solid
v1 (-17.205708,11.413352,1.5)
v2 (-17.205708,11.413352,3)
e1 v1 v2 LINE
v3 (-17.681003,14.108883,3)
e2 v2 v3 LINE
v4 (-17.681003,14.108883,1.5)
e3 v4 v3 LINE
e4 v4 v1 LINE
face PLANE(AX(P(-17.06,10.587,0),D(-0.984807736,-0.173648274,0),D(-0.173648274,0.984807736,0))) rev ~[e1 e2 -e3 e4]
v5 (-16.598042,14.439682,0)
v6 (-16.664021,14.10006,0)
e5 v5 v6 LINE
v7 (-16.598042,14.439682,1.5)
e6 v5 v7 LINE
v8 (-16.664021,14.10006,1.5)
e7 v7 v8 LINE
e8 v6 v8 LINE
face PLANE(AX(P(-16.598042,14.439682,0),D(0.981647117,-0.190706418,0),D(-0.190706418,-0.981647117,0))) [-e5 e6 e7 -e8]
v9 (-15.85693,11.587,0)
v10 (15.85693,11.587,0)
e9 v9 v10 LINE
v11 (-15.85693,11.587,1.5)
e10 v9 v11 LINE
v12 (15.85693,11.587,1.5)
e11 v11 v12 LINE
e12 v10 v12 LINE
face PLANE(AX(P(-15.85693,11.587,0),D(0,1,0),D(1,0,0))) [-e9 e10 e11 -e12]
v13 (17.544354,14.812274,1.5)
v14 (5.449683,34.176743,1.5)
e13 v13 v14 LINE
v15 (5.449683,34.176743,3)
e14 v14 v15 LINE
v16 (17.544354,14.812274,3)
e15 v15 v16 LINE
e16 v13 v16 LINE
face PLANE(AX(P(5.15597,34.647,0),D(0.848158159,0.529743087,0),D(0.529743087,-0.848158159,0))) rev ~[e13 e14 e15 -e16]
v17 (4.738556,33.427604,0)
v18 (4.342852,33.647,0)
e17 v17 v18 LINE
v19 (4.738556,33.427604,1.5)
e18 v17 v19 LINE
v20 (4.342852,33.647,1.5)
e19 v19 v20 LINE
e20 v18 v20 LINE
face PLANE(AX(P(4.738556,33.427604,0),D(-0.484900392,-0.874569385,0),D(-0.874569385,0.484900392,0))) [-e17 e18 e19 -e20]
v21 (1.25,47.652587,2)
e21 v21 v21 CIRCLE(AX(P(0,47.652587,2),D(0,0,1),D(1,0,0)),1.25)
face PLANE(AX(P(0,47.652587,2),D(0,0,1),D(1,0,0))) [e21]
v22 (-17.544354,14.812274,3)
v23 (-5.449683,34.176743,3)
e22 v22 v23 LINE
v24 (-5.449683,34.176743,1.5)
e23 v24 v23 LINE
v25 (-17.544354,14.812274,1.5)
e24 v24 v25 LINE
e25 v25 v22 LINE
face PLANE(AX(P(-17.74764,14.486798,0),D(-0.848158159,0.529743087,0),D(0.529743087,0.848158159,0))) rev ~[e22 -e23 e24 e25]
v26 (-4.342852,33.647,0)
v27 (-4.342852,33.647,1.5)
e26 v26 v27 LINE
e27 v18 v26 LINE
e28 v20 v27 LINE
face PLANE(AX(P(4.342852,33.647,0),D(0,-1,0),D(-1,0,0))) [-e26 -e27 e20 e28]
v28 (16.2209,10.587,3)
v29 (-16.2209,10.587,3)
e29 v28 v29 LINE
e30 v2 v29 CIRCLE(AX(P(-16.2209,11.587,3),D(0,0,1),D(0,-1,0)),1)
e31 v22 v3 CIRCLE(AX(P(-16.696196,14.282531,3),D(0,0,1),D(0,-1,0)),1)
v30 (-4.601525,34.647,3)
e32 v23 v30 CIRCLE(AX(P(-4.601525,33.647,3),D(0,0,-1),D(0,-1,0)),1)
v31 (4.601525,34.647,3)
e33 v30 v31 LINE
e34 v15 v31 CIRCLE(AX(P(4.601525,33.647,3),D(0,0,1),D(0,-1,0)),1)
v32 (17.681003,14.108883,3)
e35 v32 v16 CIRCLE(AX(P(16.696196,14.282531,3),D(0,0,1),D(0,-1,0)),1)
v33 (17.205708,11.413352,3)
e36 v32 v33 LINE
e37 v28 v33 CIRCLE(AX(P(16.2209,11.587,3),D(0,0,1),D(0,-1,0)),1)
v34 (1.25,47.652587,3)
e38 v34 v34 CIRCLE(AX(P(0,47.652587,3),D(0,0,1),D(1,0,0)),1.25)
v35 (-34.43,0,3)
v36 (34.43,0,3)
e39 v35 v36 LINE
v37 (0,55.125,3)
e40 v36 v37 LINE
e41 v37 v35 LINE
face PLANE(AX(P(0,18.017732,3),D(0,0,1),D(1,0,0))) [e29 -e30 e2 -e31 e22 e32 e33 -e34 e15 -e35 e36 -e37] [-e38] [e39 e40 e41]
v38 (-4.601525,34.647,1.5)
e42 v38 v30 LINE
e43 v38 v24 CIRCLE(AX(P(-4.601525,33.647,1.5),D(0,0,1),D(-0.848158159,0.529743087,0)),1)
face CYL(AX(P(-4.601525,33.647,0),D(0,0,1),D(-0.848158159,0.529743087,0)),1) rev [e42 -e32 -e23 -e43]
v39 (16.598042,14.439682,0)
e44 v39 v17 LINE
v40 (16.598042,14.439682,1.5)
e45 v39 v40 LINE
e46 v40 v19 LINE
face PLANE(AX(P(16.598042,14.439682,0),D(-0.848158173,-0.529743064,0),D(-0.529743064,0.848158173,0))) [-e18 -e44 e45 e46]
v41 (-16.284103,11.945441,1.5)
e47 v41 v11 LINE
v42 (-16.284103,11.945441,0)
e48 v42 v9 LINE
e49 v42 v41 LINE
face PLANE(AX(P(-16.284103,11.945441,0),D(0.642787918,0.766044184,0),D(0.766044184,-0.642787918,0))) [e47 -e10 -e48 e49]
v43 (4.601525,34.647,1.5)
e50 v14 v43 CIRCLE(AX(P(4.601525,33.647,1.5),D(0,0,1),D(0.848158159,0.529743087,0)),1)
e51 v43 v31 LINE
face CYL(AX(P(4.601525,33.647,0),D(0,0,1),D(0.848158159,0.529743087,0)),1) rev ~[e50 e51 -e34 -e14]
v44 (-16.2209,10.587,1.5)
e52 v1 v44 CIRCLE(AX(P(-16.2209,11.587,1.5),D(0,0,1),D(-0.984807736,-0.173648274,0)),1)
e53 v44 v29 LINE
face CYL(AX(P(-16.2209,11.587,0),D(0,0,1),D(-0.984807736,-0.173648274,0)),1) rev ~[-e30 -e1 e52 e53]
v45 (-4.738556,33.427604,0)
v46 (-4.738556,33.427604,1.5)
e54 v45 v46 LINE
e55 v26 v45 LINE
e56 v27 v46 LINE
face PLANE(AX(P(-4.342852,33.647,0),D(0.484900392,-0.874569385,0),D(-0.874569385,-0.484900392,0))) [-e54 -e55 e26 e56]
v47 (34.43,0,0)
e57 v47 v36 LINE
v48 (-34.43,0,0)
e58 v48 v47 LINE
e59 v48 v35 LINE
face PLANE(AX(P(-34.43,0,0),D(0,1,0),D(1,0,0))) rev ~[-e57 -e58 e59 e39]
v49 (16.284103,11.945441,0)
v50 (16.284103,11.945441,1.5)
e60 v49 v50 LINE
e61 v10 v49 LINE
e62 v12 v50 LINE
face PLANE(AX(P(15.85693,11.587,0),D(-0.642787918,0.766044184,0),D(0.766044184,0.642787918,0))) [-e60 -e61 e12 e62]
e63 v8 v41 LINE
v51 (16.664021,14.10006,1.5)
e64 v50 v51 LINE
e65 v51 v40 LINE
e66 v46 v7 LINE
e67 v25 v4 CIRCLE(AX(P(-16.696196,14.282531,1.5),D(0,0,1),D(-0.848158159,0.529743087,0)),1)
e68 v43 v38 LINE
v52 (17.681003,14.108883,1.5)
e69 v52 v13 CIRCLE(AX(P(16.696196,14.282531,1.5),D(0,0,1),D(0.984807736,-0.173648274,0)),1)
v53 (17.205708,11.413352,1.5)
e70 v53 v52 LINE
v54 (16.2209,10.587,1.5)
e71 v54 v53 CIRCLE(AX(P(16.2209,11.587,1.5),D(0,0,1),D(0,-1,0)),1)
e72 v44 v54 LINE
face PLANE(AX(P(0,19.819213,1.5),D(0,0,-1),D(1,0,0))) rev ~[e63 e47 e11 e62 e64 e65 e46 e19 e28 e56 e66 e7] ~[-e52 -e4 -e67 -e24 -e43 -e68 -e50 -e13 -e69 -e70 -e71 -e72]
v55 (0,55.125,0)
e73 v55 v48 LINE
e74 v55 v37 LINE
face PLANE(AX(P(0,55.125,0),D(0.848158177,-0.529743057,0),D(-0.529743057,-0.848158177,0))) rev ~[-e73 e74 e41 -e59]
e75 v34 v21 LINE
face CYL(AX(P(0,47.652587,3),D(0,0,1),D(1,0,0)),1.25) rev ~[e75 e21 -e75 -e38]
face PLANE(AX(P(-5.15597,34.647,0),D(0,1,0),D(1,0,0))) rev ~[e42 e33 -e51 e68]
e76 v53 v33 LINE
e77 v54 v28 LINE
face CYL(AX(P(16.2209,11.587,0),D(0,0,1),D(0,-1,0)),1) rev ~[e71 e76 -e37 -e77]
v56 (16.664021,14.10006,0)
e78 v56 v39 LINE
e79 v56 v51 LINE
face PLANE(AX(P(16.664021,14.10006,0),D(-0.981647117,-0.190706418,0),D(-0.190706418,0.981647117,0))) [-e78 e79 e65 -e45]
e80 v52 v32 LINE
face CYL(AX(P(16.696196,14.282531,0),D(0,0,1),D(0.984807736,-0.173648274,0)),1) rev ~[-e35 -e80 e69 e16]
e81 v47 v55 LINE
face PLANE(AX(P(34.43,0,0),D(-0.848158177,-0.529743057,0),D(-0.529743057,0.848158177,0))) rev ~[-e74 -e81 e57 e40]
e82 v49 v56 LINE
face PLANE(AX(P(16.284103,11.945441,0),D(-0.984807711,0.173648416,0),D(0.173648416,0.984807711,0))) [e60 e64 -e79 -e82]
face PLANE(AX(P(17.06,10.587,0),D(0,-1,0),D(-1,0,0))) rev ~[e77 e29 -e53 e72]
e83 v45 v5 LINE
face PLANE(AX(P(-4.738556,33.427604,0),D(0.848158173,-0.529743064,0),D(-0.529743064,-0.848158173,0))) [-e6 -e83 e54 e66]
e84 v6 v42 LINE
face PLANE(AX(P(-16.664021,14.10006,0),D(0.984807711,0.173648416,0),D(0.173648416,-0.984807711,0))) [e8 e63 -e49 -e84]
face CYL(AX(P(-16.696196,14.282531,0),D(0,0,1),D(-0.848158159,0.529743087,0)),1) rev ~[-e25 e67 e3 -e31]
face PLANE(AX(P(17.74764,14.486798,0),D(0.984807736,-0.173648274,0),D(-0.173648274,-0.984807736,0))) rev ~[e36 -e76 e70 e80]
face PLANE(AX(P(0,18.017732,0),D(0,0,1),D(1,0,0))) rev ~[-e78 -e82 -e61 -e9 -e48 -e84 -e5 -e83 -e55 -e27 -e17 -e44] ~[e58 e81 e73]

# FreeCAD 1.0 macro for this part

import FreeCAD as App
import Part
import Sketcher

V = App.Vector
Q = App.Units.Quantity


def edges_at(feature, points):
    """Names of the edges that pass closest to the given points."""
    edges = feature.Shape.Edges
    near = lambda p: min(range(len(edges)), key=lambda i: edges[i].distToShape(Part.Vertex(*p))[0])
    return sorted({f"Edge{near(p) + 1}" for p in points})


def add_polygon(sketch, points):
    """Adds a closed chain of lines whose ends are joined by coincident constraints."""
    first, n = sketch.GeometryCount, len(points)
    for a, b in zip(points, points[1:] + points[:1]):
        sketch.addGeometry(Part.LineSegment(App.Vector(*a, 0), App.Vector(*b, 0)), False)
    for i in range(n):
        sketch.addConstraint(Sketcher.Constraint("Coincident", first + i, 2, first + (i + 1) % n, 1))

doc = App.newDocument("Part")
body = doc.addObject("PartDesign::Body", "Body")

sketch1 = body.newObject("Sketcher::SketchObject", "Sketch")
sketch1.AttachmentSupport = (doc.getObject("XY_Plane"), [""])
sketch1.MapMode = "FlatFace"
add_polygon(sketch1, [(0, 55.1), (-34.4, 0), (34.4, 0)])
add_polygon(sketch1, [(-17.7, 14.5), (-5.2, 34.6), (5.2, 34.6), (17.7, 14.5), (17.1, 10.6), (-17.1, 10.6)])
sketch1.addConstraint([
    Sketcher.Constraint("Horizontal", 1),
    Sketcher.Constraint("Horizontal", 4),
    Sketcher.Constraint("Horizontal", 7),
    Sketcher.Constraint("Symmetric", 0, 2, 1, 2, -1, 1),
    Sketcher.Constraint("Symmetric", 5, 2, 8, 2, -2),
    Sketcher.Constraint("PointOnObject", 2, 2, -2),
    Sketcher.Constraint("Parallel", 0, 3),
    Sketcher.Constraint("Parallel", 2, 5),
    Sketcher.Constraint("Equal", 6, 8),
    Sketcher.Constraint("Angle", 6, Q("-100.000006 deg")),
    Sketcher.Constraint("DistanceX", 1, 1, 1, 2, 68.86),
    Sketcher.Constraint("DistanceX", 7, 2, 7, 1, 34.12),
    Sketcher.Constraint("DistanceY", 6, 2, 4, 2, 24.06),
    Sketcher.Constraint("DistanceY", -1, 1, 2, 2, 55.125),
    Sketcher.Constraint("DistanceY", -1, 1, 3, 2, 34.647),
    Sketcher.Constraint("DistanceX", 4, 1, 4, 2, 10.31194),
])
pad1 = body.newObject("PartDesign::Pad", "Pad")
pad1.Profile = sketch1
pad1.Length = 3
doc.recompute()

fillet = body.newObject("PartDesign::Fillet", "Fillet")
fillet.Base = (pad1, edges_at(pad1, [
    (17.06, 10.587, 1.5),
    (-17.06, 10.587, 1.5),
    (17.748, 14.487, 1.5),
    (-17.748, 14.487, 1.5),
    (5.156, 34.647, 1.5),
    (-5.156, 34.647, 1.5),
]))
fillet.Radius = 1

sketch2 = body.newObject("Sketcher::SketchObject", "Sketch001")
sketch2.AttachmentSupport = (doc.getObject("XY_Plane"), [""])
sketch2.MapMode = "FlatFace"
sketch2.AttachmentOffset = App.Placement(V(0, 0, 3), App.Rotation())
sketch2.addGeometry(Part.Circle(V(0, 47.7, 0), V(0, 0, 1), 1.2), False)
sketch2.addConstraint([
    Sketcher.Constraint("PointOnObject", 0, 3, -2),
    Sketcher.Constraint("Diameter", 0, 2.5),
    Sketcher.Constraint("DistanceY", -1, 1, 0, 3, 47.652587),
])
pocket1 = body.newObject("PartDesign::Pocket", "Pocket")
pocket1.Profile = sketch2
pocket1.Length = 1

sketch3 = body.newObject("Sketcher::SketchObject", "Sketch002")
sketch3.AttachmentSupport = (doc.getObject("XY_Plane"), [""])
sketch3.MapMode = "FlatFace"
add_polygon(sketch3, [(20.1, 15.82), (20.43, 14.13), (19.69, 9.98), (17.2, 7.89), (-17.2, 7.89), (-19.69, 9.98), (-20.43, 14.13), (-20.1, 15.82), (-7.37, 36.2), (-5.3, 37.35), (5.3, 37.35), (7.37, 36.2)])
add_polygon(sketch3, [(4.74, 33.43), (4.34, 33.65), (-4.34, 33.65), (-4.74, 33.43), (-16.6, 14.44), (-16.66, 14.1), (-16.28, 11.95), (-15.86, 11.59), (15.86, 11.59), (16.28, 11.95), (16.66, 14.1), (16.6, 14.44)])
sketch3.addConstraint([
    Sketcher.Constraint("Horizontal", 3),
    Sketcher.Constraint("Horizontal", 9),
    Sketcher.Constraint("Horizontal", 13),
    Sketcher.Constraint("Horizontal", 19),
    Sketcher.Constraint("Symmetric", 1, 2, 4, 2, -2),
    Sketcher.Constraint("Symmetric", 0, 2, 5, 2, -2),
    Sketcher.Constraint("Symmetric", 7, 2, 10, 2, -2),
    Sketcher.Constraint("Symmetric", 6, 2, 11, 2, -2),
    Sketcher.Constraint("Symmetric", 17, 2, 20, 2, -2),
    Sketcher.Constraint("Symmetric", 16, 2, 21, 2, -2),
    Sketcher.Constraint("Symmetric", 15, 2, 22, 2, -2),
    Sketcher.Constraint("Symmetric", 14, 2, 23, 2, -2),
    Sketcher.Constraint("Parallel", 10, 12),
    Sketcher.Constraint("Parallel", 8, 14),
    Sketcher.Constraint("Parallel", 7, 15),
    Sketcher.Constraint("Parallel", 6, 16),
    Sketcher.Constraint("Parallel", 5, 17),
    Sketcher.Constraint("Parallel", 4, 18),
    Sketcher.Constraint("Parallel", 2, 20),
    Sketcher.Constraint("Equal", 2, 4),
    Sketcher.Constraint("Equal", 8, 10),
    Sketcher.Constraint("Angle", 1, Q("-99.999995 deg")),
    Sketcher.Constraint("Angle", 2, Q("-139.999991 deg")),
    Sketcher.Constraint("DistanceY", 12, 2, 9, 2, 3.7),
    Sketcher.Constraint("DistanceY", 3, 2, 18, 2, 3.7),
    Sketcher.Constraint("DistanceY", 3, 2, 8, 2, 29.46),
    Sketcher.Constraint("DistanceY", -1, 1, 2, 2, 7.887),
    Sketcher.Constraint("DistanceX", 4, 2, 15, 2, 3.095999),
    Sketcher.Constraint("DistanceX", 3, 2, 3, 1, 34.40724),
    Sketcher.Constraint("DistanceX", 19, 1, 19, 2, 31.71386),
    Sketcher.Constraint("DistanceX", 4, 2, 8, 2, 14.394099),
    Sketcher.Constraint("DistanceX", 3, 2, 16, 2, 0.539599),
    Sketcher.Constraint("Distance", 15, 22.387242),
    Sketcher.Constraint("Distance", 16, 0.345972),
    Sketcher.Constraint("DistanceX", 9, 1, 9, 2, 10.599884),
    Sketcher.Constraint("DistanceX", 13, 2, 13, 1, 8.685704),
    Sketcher.Constraint("DistanceX", 7, 2, -1, 1, 7.369729),
    Sketcher.Constraint("DistanceY", -1, 1, 16, 2, 14.10006),
    Sketcher.Constraint("DistanceY", 1, 2, 0, 2, 4.155991),
    Sketcher.Constraint("DistanceX", 5, 2, 6, 2, 0.327459),
])
pad2 = body.newObject("PartDesign::Pad", "Pad001")
pad2.Profile = sketch3
pad2.Length = 1.5

doc.recompute()
